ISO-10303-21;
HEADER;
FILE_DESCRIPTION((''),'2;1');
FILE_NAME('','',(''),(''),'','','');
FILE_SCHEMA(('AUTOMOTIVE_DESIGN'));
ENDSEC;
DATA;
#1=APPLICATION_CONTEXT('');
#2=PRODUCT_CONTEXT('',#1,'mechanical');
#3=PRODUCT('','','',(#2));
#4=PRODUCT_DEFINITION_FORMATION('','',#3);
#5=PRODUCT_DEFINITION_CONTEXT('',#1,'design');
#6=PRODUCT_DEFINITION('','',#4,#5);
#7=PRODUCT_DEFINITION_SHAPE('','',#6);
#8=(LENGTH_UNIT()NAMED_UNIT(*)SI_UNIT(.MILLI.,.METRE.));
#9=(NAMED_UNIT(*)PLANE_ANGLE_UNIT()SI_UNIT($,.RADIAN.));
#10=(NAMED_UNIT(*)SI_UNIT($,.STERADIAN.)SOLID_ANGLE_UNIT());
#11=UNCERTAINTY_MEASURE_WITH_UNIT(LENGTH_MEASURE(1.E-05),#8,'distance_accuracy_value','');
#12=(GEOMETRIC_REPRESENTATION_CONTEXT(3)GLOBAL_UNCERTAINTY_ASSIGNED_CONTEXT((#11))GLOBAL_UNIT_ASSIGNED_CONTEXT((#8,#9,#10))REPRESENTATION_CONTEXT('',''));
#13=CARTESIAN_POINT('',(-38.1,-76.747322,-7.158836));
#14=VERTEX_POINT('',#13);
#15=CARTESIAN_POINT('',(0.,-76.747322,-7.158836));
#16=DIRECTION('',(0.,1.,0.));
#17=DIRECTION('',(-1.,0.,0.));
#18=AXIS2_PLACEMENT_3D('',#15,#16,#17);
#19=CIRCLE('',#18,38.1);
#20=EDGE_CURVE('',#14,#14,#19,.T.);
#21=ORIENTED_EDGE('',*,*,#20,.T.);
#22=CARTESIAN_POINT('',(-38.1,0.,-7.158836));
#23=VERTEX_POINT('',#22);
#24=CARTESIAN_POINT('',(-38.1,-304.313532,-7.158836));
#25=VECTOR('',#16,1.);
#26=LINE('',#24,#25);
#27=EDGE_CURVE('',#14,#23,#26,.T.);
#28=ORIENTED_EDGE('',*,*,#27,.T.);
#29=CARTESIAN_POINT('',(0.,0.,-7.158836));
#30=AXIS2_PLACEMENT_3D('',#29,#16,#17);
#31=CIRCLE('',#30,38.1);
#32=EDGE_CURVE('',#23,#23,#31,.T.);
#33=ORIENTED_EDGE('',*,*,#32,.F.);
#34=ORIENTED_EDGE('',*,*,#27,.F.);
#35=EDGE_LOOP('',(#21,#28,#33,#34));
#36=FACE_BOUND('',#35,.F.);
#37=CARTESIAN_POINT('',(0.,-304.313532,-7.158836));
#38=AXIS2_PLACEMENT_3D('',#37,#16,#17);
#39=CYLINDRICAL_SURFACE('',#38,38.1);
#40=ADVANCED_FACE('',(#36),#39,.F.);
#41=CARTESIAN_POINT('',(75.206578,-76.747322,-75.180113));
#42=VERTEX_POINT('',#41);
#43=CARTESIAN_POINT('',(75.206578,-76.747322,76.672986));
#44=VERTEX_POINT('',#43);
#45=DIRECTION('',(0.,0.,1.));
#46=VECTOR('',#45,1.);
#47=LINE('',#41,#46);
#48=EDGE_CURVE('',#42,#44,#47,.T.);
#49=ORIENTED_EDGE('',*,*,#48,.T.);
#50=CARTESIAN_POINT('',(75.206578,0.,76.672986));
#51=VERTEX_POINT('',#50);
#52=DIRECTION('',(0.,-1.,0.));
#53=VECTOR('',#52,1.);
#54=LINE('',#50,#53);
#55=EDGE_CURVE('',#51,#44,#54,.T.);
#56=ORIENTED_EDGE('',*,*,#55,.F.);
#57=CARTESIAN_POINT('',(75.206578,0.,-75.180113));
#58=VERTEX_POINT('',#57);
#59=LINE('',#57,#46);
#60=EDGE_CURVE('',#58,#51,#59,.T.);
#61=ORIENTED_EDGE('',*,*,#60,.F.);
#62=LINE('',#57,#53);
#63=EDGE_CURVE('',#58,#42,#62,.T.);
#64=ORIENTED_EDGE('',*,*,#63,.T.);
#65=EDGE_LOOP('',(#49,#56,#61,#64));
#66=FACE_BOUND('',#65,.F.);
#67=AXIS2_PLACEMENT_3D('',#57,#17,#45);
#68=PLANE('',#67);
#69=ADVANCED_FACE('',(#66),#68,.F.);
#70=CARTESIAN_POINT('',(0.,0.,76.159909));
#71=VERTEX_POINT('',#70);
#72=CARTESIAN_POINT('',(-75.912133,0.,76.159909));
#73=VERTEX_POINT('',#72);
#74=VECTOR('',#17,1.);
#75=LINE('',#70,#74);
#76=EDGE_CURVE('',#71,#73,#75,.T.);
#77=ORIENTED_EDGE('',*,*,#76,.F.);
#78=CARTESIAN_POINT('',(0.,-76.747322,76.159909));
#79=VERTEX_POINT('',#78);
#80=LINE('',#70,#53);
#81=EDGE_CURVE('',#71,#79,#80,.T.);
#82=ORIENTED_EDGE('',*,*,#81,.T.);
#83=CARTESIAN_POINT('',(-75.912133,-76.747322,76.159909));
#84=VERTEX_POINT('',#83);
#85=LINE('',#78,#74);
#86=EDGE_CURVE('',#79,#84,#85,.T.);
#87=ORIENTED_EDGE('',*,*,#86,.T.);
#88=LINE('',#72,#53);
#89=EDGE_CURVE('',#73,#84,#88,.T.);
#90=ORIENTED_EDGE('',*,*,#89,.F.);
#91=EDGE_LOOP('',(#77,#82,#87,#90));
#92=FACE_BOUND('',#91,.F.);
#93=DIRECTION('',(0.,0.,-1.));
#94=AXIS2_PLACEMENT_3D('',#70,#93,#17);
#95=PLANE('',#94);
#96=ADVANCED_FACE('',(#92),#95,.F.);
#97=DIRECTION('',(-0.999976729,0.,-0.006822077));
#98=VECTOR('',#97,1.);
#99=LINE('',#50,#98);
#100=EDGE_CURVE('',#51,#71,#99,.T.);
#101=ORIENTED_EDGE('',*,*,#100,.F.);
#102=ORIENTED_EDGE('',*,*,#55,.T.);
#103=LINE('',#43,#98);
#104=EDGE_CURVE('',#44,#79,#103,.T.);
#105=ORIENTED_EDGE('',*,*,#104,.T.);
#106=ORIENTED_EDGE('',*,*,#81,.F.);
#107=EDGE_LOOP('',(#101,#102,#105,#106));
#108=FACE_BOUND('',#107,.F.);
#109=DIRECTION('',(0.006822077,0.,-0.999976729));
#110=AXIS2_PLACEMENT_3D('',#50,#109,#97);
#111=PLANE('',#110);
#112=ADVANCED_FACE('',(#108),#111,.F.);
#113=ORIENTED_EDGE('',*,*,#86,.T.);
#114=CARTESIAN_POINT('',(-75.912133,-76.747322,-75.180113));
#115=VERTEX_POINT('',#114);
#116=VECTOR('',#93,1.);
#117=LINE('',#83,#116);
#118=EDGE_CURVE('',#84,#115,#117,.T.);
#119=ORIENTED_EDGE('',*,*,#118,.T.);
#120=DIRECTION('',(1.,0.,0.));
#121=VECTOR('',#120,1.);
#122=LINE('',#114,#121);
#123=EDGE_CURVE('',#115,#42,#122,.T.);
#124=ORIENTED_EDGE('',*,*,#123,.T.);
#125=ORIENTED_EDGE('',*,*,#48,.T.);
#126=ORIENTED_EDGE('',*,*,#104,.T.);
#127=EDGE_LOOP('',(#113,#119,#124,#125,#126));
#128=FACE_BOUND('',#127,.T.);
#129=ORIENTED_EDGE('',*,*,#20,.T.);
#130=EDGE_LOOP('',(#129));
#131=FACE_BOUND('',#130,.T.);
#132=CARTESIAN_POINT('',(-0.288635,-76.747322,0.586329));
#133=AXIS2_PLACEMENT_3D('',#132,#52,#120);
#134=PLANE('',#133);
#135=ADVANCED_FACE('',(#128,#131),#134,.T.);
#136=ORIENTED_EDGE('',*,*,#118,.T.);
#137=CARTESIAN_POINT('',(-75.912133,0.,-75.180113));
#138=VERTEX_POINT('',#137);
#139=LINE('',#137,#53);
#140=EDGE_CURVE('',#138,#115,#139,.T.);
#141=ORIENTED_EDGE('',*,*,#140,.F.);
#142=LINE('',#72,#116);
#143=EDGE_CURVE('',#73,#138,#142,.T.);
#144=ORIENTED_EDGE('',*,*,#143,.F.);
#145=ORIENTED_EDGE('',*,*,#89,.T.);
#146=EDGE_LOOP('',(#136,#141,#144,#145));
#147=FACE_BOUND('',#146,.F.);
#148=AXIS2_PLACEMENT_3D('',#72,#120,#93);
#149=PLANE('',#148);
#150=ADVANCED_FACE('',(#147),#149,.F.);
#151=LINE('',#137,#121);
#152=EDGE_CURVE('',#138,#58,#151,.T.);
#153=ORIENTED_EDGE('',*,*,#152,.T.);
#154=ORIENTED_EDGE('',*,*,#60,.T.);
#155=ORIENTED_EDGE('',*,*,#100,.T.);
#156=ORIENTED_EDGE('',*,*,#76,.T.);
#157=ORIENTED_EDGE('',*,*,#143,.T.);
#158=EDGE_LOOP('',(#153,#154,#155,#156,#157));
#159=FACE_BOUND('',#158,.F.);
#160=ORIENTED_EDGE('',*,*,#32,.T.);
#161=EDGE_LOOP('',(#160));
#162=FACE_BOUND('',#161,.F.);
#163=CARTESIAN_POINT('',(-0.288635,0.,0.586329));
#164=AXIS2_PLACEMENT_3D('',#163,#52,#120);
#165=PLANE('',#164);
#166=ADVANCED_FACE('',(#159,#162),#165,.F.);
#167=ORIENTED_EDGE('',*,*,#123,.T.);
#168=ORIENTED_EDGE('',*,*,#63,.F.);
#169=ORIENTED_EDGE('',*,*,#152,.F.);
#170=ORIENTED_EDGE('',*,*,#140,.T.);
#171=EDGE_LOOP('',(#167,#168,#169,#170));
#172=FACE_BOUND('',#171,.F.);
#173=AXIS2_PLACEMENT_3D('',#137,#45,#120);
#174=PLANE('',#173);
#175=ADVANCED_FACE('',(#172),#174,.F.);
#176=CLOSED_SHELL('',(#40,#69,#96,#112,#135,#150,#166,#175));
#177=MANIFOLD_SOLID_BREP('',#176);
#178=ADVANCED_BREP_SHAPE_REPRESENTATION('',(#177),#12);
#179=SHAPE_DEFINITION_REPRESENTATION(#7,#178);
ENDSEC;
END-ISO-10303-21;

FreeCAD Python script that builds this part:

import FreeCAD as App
import Part
import Sketcher

V = App.Vector
Q = App.Units.Quantity

doc = App.newDocument("Part")
body = doc.addObject("PartDesign::Body", "Body")

sketch1 = body.newObject("Sketcher::SketchObject", "Sketch")
sketch1.AttachmentSupport = (doc.getObject("XZ_Plane"), [""])
sketch1.MapMode = "FlatFace"
sketch1.addGeometry(Part.LineSegment(V(75.206578, 76.672986, 0), V(0, 76.159909, 0)), False)
sketch1.addGeometry(Part.LineSegment(V(0, 76.159909, 0), V(-75.912133, 76.159909, 0)), False)
sketch1.addGeometry(Part.LineSegment(V(-75.912133, 76.159909, 0), V(-75.912133, -75.180113, 0)), False)
sketch1.addGeometry(Part.LineSegment(V(-75.912133, -75.180113, 0), V(75.206578, -75.180113, 0)), False)
sketch1.addGeometry(Part.LineSegment(V(75.206578, -75.180113, 0), V(75.206578, 76.672986, 0)), False)
sketch1.addConstraint(Sketcher.Constraint("Coincident", 0, 2, 1, 1))
sketch1.addConstraint(Sketcher.Constraint("Coincident", 1, 2, 2, 1))
sketch1.addConstraint(Sketcher.Constraint("Coincident", 2, 2, 3, 1))
sketch1.addConstraint(Sketcher.Constraint("Coincident", 3, 2, 4, 1))
sketch1.addConstraint(Sketcher.Constraint("Coincident", 4, 2, 0, 1))
sketch1.addConstraint(Sketcher.Constraint("Horizontal", 1))
sketch1.addConstraint(Sketcher.Constraint("Vertical", 2))
sketch1.addConstraint(Sketcher.Constraint("Horizontal", 3))
sketch1.addConstraint(Sketcher.Constraint("Vertical", 4))
sketch1.addConstraint(Sketcher.Constraint("PointOnObject", 0, 2, -2))
sketch1.addConstraint(Sketcher.Constraint("DistanceY", 4, 1, 4, 2, 151.853099))
sketch1.addConstraint(Sketcher.Constraint("DistanceY", 0, 2, 4, 2, Q("0.0201999 in")))
sketch1.addConstraint(Sketcher.Constraint("DistanceX", 3, 1, 3, 2, 151.118711))
sketch1.addConstraint(Sketcher.Constraint("Distance", 0, 75.208328))
sketch1.addConstraint(Sketcher.Constraint("DistanceY", -1, 1, 0, 2, 76.159909))
pad1 = body.newObject("PartDesign::Pad", "Pad")
pad1.Profile = sketch1
pad1.Length = 76.747322

sketch2 = body.newObject("Sketcher::SketchObject", "Sketch001")
sketch2.AttachmentSupport = (doc.getObject("XZ_Plane"), [""])
sketch2.MapMode = "FlatFace"
sketch2.AttachmentOffset = App.Placement(V(0, 0, 76.747322), App.Rotation())
sketch2.addGeometry(Part.Circle(V(0, -7.158836, 0), V(0, 0, 1), 38.1), False)
sketch2.addConstraint(Sketcher.Constraint("PointOnObject", 0, 3, -2))
sketch2.addConstraint(Sketcher.Constraint("Diameter", 0, Q("3 in")))
sketch2.addConstraint(Sketcher.Constraint("DistanceY", 0, 3, -1, 1, 7.158836))
doc.recompute()
hole = body.newObject("PartDesign::Hole", "Hole")
hole.Profile = sketch2
hole.ThreadType = "None"
hole.Diameter = Q("3 in")
hole.DepthType = "ThroughAll"

doc.recompute()
